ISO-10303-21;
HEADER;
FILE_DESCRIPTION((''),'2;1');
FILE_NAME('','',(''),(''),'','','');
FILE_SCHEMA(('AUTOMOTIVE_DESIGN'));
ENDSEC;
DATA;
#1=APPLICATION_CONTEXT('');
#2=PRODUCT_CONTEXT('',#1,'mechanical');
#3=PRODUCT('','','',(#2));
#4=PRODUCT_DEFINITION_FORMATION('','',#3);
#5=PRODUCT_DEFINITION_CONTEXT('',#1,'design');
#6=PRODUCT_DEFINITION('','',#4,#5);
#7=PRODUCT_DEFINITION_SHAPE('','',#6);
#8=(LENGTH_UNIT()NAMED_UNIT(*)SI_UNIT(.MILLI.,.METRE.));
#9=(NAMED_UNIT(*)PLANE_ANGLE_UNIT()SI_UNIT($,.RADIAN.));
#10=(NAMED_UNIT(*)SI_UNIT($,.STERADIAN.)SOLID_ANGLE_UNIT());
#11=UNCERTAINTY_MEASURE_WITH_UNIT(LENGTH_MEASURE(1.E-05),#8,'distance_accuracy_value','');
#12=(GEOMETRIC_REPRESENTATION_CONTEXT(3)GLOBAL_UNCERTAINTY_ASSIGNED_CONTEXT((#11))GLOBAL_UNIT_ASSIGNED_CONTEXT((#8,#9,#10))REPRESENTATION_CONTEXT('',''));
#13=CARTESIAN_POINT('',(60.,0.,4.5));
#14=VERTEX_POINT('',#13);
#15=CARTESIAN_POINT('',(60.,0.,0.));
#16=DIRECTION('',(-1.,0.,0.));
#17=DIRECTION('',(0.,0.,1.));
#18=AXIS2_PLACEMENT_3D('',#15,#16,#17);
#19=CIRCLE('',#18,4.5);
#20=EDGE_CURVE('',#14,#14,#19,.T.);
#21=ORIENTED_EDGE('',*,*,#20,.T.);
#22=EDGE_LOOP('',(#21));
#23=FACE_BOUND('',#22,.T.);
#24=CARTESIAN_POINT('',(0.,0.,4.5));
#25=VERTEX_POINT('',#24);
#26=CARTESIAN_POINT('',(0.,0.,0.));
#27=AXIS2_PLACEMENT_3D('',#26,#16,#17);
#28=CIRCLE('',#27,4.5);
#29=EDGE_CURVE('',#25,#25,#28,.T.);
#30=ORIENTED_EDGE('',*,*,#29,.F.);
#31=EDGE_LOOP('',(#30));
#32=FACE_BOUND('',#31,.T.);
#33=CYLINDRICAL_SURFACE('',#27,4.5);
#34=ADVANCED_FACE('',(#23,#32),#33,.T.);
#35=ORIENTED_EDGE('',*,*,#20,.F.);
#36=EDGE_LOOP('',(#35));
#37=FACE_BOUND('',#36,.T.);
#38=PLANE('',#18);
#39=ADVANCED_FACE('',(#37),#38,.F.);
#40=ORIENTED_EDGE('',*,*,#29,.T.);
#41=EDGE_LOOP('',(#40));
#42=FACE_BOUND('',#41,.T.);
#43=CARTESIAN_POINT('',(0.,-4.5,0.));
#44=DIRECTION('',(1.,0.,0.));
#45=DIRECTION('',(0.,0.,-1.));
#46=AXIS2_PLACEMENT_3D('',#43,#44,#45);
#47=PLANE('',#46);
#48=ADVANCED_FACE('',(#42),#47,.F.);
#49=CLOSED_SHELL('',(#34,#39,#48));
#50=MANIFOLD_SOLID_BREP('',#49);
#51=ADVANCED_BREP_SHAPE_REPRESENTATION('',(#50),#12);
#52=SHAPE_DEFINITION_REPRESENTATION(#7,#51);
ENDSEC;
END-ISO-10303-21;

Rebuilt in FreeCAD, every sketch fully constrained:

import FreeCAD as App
import Part
import Sketcher

V = App.Vector
Q = App.Units.Quantity


def add_polygon(sketch, points):
    """Adds a closed chain of lines whose ends are joined by coincident constraints."""
    first, n = sketch.GeometryCount, len(points)
    for a, b in zip(points, points[1:] + points[:1]):
        sketch.addGeometry(Part.LineSegment(App.Vector(*a, 0), App.Vector(*b, 0)), False)
    for i in range(n):
        sketch.addConstraint(Sketcher.Constraint("Coincident", first + i, 2, first + (i + 1) % n, 1))

doc = App.newDocument("Part")
body = doc.addObject("PartDesign::Body", "Body")

# Sketch on XY plane
sketch1 = body.newObject("Sketcher::SketchObject", "Sketch")
sketch1.AttachmentSupport = (doc.getObject("XY_Plane"), [""])
sketch1.MapMode = "FlatFace"
add_polygon(sketch1, [(0, 4.5), (0, 0), (60, 0), (60, 4.5)])  # lines 0-3
sketch1.addConstraint(Sketcher.Constraint("Vertical", 0))
sketch1.addConstraint(Sketcher.Constraint("Horizontal", 1))
sketch1.addConstraint(Sketcher.Constraint("Vertical", 2))
sketch1.addConstraint(Sketcher.Constraint("Horizontal", 3))
sketch1.addConstraint(Sketcher.Constraint("Coincident", 0, 2, -1, 1))
sketch1.addConstraint(Sketcher.Constraint("DistanceX", 1, 1, 1, 2, Q("60 mm")))
sketch1.addConstraint(Sketcher.Constraint("DistanceY", 0, 2, 0, 1, Q("4.5 mm")))
revolution = body.newObject("PartDesign::Revolution", "Revolution")
revolution.Profile = sketch1
revolution.ReferenceAxis = (sketch1, ["H_Axis"])
revolution.Angle = 360

doc.recompute()
